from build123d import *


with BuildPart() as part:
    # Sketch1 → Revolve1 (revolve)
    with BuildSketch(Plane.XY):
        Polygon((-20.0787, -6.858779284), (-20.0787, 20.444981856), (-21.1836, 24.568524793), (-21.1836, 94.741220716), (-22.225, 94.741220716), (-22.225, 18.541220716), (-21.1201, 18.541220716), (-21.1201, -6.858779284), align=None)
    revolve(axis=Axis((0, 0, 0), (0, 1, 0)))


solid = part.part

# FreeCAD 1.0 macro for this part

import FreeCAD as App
import Part
import Sketcher

V = App.Vector
Q = App.Units.Quantity

doc = App.newDocument("Part")
body = doc.addObject("PartDesign::Body", "Body")

sketch1 = body.newObject("Sketcher::SketchObject", "Sketch")
sketch1.AttachmentSupport = (doc.getObject("XY_Plane"), [""])
sketch1.MapMode = "FlatFace"
sketch1.addGeometry([
    Part.LineSegment(V(-20.0787, -6.858779, 0), V(-20.0787, 20.444982, 0)),
    Part.LineSegment(V(-20.0787, 20.444982, 0), V(-21.1836, 24.568525, 0)),
    Part.LineSegment(V(-21.1836, 24.568525, 0), V(-21.1836, 94.741221, 0)),
    Part.LineSegment(V(-21.1836, 94.741221, 0), V(-22.225, 94.741221, 0)),
    Part.LineSegment(V(-22.225, 94.741221, 0), V(-22.225, 18.541221, 0)),
    Part.LineSegment(V(-22.225, 18.541221, 0), V(-21.1201, 18.541221, 0)),
    Part.LineSegment(V(-21.1201, 18.541221, 0), V(-21.1201, -6.858779, 0)),
    Part.LineSegment(V(-21.1201, -6.858779, 0), V(-20.0787, -6.858779, 0)),
], False)
sketch1.addConstraint([
    Sketcher.Constraint("Coincident", 0, 2, 1, 1),
    Sketcher.Constraint("Coincident", 1, 2, 2, 1),
    Sketcher.Constraint("Coincident", 2, 2, 3, 1),
    Sketcher.Constraint("Coincident", 3, 2, 4, 1),
    Sketcher.Constraint("Coincident", 4, 2, 5, 1),
    Sketcher.Constraint("Coincident", 5, 2, 6, 1),
    Sketcher.Constraint("Coincident", 6, 2, 7, 1),
    Sketcher.Constraint("Coincident", 7, 2, 0, 1),
    Sketcher.Constraint("Vertical", 0),
    Sketcher.Constraint("Vertical", 2),
    Sketcher.Constraint("Horizontal", 3),
    Sketcher.Constraint("Vertical", 4),
    Sketcher.Constraint("Horizontal", 5),
    Sketcher.Constraint("Vertical", 6),
    Sketcher.Constraint("Horizontal", 7),
    Sketcher.Constraint("Equal", 3, 7),
    Sketcher.Constraint("DistanceY", 4, 2, 4, 1, Q("3 in")),
    Sketcher.Constraint("DistanceY", 6, 2, 6, 1, Q("1 in")),
    Sketcher.Constraint("Angle", 1, Q("105 deg")),
    Sketcher.Constraint("DistanceX", 3, 2, 3, 1, Q("0.041 in")),
    Sketcher.Constraint("DistanceX", 5, 1, 5, 2, Q("0.0435 in")),
    Sketcher.Constraint("DistanceX", 1, 2, -1, 1, Q("0.834 in")),
    Sketcher.Constraint("DistanceY", 0, 1, 0, 2, Q("27.303761 mm")),
    Sketcher.Constraint("DistanceY", -1, 1, 0, 2, Q("20.444982 mm")),
])
revolution = body.newObject("PartDesign::Revolution", "Revolution")
revolution.Profile = sketch1
revolution.ReferenceAxis = (sketch1, ["V_Axis"])
revolution.Angle = 360

doc.recompute()
